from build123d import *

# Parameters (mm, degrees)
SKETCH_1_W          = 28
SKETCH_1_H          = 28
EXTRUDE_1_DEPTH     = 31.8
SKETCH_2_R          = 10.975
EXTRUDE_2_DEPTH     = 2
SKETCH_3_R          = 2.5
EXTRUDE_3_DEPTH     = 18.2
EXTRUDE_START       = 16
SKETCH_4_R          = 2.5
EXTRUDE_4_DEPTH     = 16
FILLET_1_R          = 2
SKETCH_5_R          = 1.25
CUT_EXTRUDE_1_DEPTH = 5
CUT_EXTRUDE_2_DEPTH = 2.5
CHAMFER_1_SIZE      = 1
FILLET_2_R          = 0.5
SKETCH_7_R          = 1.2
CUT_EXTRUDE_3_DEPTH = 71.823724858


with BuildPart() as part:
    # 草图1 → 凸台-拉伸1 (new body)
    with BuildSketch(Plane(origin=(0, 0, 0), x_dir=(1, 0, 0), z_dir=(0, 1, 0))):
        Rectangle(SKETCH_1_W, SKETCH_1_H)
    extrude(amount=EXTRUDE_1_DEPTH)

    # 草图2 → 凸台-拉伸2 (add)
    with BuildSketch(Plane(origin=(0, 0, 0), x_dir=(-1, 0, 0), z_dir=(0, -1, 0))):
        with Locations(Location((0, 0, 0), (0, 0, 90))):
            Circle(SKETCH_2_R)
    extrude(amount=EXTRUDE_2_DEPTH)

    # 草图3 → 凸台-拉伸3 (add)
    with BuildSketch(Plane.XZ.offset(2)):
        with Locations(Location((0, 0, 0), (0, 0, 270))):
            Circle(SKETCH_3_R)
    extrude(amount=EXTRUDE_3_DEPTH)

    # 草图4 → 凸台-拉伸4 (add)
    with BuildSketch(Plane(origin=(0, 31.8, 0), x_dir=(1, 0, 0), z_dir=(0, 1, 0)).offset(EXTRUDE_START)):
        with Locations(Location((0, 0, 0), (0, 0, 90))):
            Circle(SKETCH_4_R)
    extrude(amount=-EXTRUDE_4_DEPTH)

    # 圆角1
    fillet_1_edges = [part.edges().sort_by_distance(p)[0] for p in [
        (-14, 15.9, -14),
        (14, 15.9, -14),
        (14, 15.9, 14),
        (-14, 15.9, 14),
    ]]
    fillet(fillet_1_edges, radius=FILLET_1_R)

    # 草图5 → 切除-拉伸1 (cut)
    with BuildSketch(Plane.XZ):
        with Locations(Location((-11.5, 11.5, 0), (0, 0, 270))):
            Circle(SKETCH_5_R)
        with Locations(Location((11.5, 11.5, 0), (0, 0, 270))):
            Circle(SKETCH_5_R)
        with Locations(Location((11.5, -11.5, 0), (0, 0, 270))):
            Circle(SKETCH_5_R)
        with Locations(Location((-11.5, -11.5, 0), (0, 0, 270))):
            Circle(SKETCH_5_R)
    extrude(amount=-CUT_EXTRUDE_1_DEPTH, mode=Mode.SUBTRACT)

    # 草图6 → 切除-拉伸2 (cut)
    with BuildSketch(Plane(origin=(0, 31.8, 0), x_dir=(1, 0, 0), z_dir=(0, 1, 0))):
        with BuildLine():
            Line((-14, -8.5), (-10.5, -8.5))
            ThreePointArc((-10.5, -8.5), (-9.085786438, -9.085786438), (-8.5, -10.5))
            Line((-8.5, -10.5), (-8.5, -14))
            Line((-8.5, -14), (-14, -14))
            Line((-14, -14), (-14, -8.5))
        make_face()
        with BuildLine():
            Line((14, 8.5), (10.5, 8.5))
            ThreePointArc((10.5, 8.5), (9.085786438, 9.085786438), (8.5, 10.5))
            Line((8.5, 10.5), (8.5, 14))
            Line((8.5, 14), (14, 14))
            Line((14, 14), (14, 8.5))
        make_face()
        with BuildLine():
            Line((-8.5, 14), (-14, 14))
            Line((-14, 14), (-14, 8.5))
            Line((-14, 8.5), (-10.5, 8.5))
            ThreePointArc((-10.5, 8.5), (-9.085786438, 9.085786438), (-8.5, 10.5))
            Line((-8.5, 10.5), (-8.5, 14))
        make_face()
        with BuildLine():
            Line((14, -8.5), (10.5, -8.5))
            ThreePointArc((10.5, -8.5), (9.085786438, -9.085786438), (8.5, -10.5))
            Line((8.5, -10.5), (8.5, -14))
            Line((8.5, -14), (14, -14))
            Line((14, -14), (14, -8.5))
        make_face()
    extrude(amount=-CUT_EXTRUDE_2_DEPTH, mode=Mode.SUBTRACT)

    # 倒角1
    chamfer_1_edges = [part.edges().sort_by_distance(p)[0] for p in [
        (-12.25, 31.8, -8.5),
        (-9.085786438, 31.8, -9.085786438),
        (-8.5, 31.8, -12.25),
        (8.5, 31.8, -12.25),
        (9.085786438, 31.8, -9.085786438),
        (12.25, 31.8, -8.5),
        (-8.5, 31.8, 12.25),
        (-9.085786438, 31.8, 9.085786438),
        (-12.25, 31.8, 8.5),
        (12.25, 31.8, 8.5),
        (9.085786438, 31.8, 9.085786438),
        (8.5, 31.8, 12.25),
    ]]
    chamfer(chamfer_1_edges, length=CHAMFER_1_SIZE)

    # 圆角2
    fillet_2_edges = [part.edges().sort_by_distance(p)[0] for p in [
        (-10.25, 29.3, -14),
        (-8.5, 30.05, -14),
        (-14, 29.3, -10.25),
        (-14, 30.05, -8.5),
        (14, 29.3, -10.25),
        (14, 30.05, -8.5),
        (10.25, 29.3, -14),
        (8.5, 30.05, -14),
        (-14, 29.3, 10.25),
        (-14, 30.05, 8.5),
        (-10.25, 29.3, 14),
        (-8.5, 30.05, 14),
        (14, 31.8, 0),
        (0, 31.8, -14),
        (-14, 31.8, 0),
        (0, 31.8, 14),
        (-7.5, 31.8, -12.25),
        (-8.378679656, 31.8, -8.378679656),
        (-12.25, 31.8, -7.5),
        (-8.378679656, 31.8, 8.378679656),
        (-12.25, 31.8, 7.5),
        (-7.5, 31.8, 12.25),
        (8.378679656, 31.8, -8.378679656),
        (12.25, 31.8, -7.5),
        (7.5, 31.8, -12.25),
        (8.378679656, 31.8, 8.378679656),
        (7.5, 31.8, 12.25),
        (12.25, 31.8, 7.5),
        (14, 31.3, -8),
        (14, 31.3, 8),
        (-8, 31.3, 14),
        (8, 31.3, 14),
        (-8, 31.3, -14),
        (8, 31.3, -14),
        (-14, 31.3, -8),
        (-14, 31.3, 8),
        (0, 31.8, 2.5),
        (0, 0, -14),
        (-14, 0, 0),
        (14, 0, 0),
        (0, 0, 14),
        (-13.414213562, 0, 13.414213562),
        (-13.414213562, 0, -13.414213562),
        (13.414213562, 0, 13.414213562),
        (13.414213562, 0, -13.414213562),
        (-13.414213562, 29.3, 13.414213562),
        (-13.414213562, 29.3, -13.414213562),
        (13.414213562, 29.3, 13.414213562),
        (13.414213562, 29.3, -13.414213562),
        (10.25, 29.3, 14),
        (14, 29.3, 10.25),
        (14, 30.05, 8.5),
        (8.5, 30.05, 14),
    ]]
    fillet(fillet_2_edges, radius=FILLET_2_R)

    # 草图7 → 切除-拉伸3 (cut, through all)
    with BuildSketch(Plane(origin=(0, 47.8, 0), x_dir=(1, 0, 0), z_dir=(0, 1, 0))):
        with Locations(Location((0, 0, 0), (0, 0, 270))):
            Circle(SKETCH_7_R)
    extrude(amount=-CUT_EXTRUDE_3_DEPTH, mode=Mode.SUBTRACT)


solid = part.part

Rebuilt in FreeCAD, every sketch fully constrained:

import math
import FreeCAD as App
import Part
import Sketcher

V = App.Vector
Q = App.Units.Quantity


def edges_at(feature, points):
    """Names of the edges that pass closest to the given points."""
    edges = feature.Shape.Edges
    near = lambda p: min(range(len(edges)), key=lambda i: edges[i].distToShape(Part.Vertex(*p))[0])
    return sorted({f"Edge{near(p) + 1}" for p in points})

doc = App.newDocument("Part")
body = doc.addObject("PartDesign::Body", "Body")

# Sketch on XZ plane
sketch1 = doc.addObject("Sketcher::SketchObject", "Sketch")
body.addObject(sketch1)
sketch1.AttachmentSupport = (doc.XZ_Plane, [""])
sketch1.MapMode = "FlatFace"
sketch1.addGeometry([
    Part.LineSegment(V(-14, -14, 0), V(-14, 14, 0)),
    Part.LineSegment(V(-14, 14, 0), V(14, 14, 0)),
    Part.LineSegment(V(14, 14, 0), V(14, -14, 0)),
    Part.LineSegment(V(14, -14, 0), V(-14, -14, 0)),
], False)
sketch1.addConstraint([
    Sketcher.Constraint("Coincident", 0, 2, 1, 1),
    Sketcher.Constraint("Coincident", 1, 2, 2, 1),
    Sketcher.Constraint("Coincident", 2, 2, 3, 1),
    Sketcher.Constraint("Coincident", 3, 2, 0, 1),
    Sketcher.Constraint("Vertical", 0),
    Sketcher.Constraint("Horizontal", 1),
    Sketcher.Constraint("Vertical", 2),
    Sketcher.Constraint("Horizontal", 3),
    Sketcher.Constraint("Symmetric", 0, 2, 2, 2, -1, 1),
    Sketcher.Constraint("Equal", 3, 0),
    Sketcher.Constraint("DistanceX", 1, 1, 1, 2, Q("28 mm")),
])
pad1 = doc.addObject("PartDesign::Pad", "Pad")
body.addObject(pad1)
pad1.Profile = sketch1
pad1.Length = 31.8
pad1.Reversed = True

# Sketch on XZ plane
sketch2 = doc.addObject("Sketcher::SketchObject", "Sketch001")
body.addObject(sketch2)
sketch2.AttachmentSupport = (doc.XZ_Plane, [""])
sketch2.MapMode = "FlatFace"
sketch2.addGeometry(Part.Circle(V(0, 0, 0), V(0, 0, 1), 11), False)
sketch2.addConstraint([
    Sketcher.Constraint("Coincident", 0, 3, -1, 1),
    Sketcher.Constraint("Diameter", 0, Q("21.95 mm")),
])
pad2 = doc.addObject("PartDesign::Pad", "Pad001")
body.addObject(pad2)
pad2.Profile = sketch2
pad2.Length = 2

# Sketch on XZ plane
sketch3 = doc.addObject("Sketcher::SketchObject", "Sketch002")
body.addObject(sketch3)
sketch3.AttachmentSupport = (doc.XZ_Plane, [""])
sketch3.MapMode = "FlatFace"
sketch3.AttachmentOffset = App.Placement(V(0, 0, 2), App.Rotation())
sketch3.addGeometry(Part.Circle(V(0, 0, 0), V(0, 0, 1), 2.5), False)
sketch3.addConstraint([
    Sketcher.Constraint("Coincident", 0, 3, -1, 1),
    Sketcher.Constraint("Diameter", 0, Q("5 mm")),
])
pad3 = doc.addObject("PartDesign::Pad", "Pad002")
body.addObject(pad3)
pad3.Profile = sketch3
pad3.Length = 18.2

# Sketch on XZ plane
sketch4 = doc.addObject("Sketcher::SketchObject", "Sketch003")
body.addObject(sketch4)
sketch4.AttachmentSupport = (doc.XZ_Plane, [""])
sketch4.MapMode = "FlatFace"
sketch4.AttachmentOffset = App.Placement(V(0, 0, -47.8), App.Rotation())
sketch4.addGeometry(Part.Circle(V(0, 0, 0), V(0, 0, 1), 2.5), False)
sketch4.addConstraint([
    Sketcher.Constraint("Coincident", 0, 3, -1, 1),
    Sketcher.Constraint("Diameter", 0, Q("5 mm")),
])
pad4 = doc.addObject("PartDesign::Pad", "Pad003")
body.addObject(pad4)
pad4.Profile = sketch4
pad4.Length = 16
doc.recompute()

fillet = doc.addObject("PartDesign::Fillet", "Fillet")
body.addObject(fillet)
fillet.Base = (pad4, edges_at(pad4, [
    (-14, 15.9, -14),
    (14, 15.9, -14),
    (14, 15.9, 14),
    (-14, 15.9, 14),
]))
fillet.Radius = 2

# Sketch on XZ plane
sketch5 = doc.addObject("Sketcher::SketchObject", "Sketch004")
body.addObject(sketch5)
sketch5.AttachmentSupport = (doc.XZ_Plane, [""])
sketch5.MapMode = "FlatFace"
sketch5.addGeometry([
    Part.Circle(V(-11.5, 11.5, 0), V(0, 0, 1), 1.2),
    Part.Circle(V(11.5, 11.5, 0), V(0, 0, 1), 1.2),
    Part.Circle(V(11.5, -11.5, 0), V(0, 0, 1), 1.2),
    Part.Circle(V(-11.5, -11.5, 0), V(0, 0, 1), 1.2),
], False)
sketch5.addConstraint([
    Sketcher.Constraint("Equal", 0, 1),
    Sketcher.Constraint("Equal", 1, 2),
    Sketcher.Constraint("Equal", 2, 3),
    Sketcher.Constraint("Symmetric", 0, 3, 2, 3, -1, 1),
    Sketcher.Constraint("Symmetric", 1, 3, 3, 3, -1, 1),
    Sketcher.Constraint("Symmetric", 0, 3, 1, 3, -2),
    Sketcher.Constraint("Diameter", 0, Q("2.5 mm")),
    Sketcher.Constraint("DistanceX", 0, 3, 1, 3, Q("23 mm")),
    Sketcher.Constraint("DistanceY", 2, 3, 1, 3, Q("23 mm")),
])
pocket1 = doc.addObject("PartDesign::Pocket", "Pocket")
body.addObject(pocket1)
pocket1.Profile = sketch5
pocket1.Length = 5

# Sketch on XZ plane
sketch6 = doc.addObject("Sketcher::SketchObject", "Sketch005")
body.addObject(sketch6)
sketch6.AttachmentSupport = (doc.XZ_Plane, [""])
sketch6.MapMode = "FlatFace"
sketch6.AttachmentOffset = App.Placement(V(0, 0, -31.8), App.Rotation())
sketch6.addGeometry([
    Part.LineSegment(V(-10.5, 8.5, 0), V(-14, 8.5, 0)),  # 0
    Part.LineSegment(V(-14, 8.5, 0), V(-14, 14, 0)),  # 1
    Part.LineSegment(V(-14, 14, 0), V(-8.5, 14, 0)),  # 2
    Part.LineSegment(V(-8.5, 14, 0), V(-8.5, 10.5, 0)),  # 3
    Part.ArcOfCircle(Part.Circle(V(-10.5, 10.5, 0), V(0, 0, 1), 2), math.radians(-90), math.radians(0)),  # 4
    Part.LineSegment(V(10.5, -8.5, 0), V(14, -8.5, 0)),  # 5
    Part.LineSegment(V(14, -8.5, 0), V(14, -14, 0)),  # 6
    Part.LineSegment(V(14, -14, 0), V(8.5, -14, 0)),  # 7
    Part.LineSegment(V(8.5, -14, 0), V(8.5, -10.5, 0)),  # 8
    Part.ArcOfCircle(Part.Circle(V(10.5, -10.5, 0), V(0, 0, 1), 2), math.radians(90), math.radians(180)),  # 9
    Part.LineSegment(V(-8.5, -14, 0), V(-14, -14, 0)),  # 10
    Part.LineSegment(V(-14, -14, 0), V(-14, -8.5, 0)),  # 11
    Part.LineSegment(V(-14, -8.5, 0), V(-10.5, -8.5, 0)),  # 12
    Part.ArcOfCircle(Part.Circle(V(-10.5, -10.5, 0), V(0, 0, 1), 2), math.radians(0), math.radians(90)),  # 13
    Part.LineSegment(V(-8.5, -10.5, 0), V(-8.5, -14, 0)),  # 14
    Part.LineSegment(V(14, 8.5, 0), V(10.5, 8.5, 0)),  # 15
    Part.ArcOfCircle(Part.Circle(V(10.5, 10.5, 0), V(0, 0, 1), 2), math.radians(-180), math.radians(-90)),  # 16
    Part.LineSegment(V(8.5, 10.5, 0), V(8.5, 14, 0)),  # 17
    Part.LineSegment(V(8.5, 14, 0), V(14, 14, 0)),  # 18
    Part.LineSegment(V(14, 14, 0), V(14, 8.5, 0)),  # 19
], False)
sketch6.addConstraint([
    Sketcher.Constraint("Coincident", 0, 2, 1, 1),
    Sketcher.Constraint("Coincident", 1, 2, 2, 1),
    Sketcher.Constraint("Coincident", 2, 2, 3, 1),
    Sketcher.Constraint("Tangent", 3, 2, 4, 2),
    Sketcher.Constraint("Tangent", 4, 1, 0, 1),
    Sketcher.Constraint("Coincident", 5, 2, 6, 1),
    Sketcher.Constraint("Coincident", 6, 2, 7, 1),
    Sketcher.Constraint("Coincident", 7, 2, 8, 1),
    Sketcher.Constraint("Tangent", 8, 2, 9, 2),
    Sketcher.Constraint("Tangent", 9, 1, 5, 1),
    Sketcher.Constraint("Coincident", 10, 2, 11, 1),
    Sketcher.Constraint("Coincident", 11, 2, 12, 1),
    Sketcher.Constraint("Tangent", 12, 2, 13, 2),
    Sketcher.Constraint("Tangent", 13, 1, 14, 1),
    Sketcher.Constraint("Coincident", 14, 2, 10, 1),
    Sketcher.Constraint("Tangent", 15, 2, 16, 2),
    Sketcher.Constraint("Tangent", 16, 1, 17, 1),
    Sketcher.Constraint("Coincident", 17, 2, 18, 1),
    Sketcher.Constraint("Coincident", 18, 2, 19, 1),
    Sketcher.Constraint("Coincident", 19, 2, 15, 1),
    Sketcher.Constraint("Horizontal", 0),
    Sketcher.Constraint("Vertical", 1),
    Sketcher.Constraint("Horizontal", 2),
    Sketcher.Constraint("Vertical", 3),
    Sketcher.Constraint("Horizontal", 5),
    Sketcher.Constraint("Vertical", 6),
    Sketcher.Constraint("Horizontal", 7),
    Sketcher.Constraint("Vertical", 8),
    Sketcher.Constraint("Horizontal", 10),
    Sketcher.Constraint("Vertical", 11),
    Sketcher.Constraint("Horizontal", 12),
    Sketcher.Constraint("Vertical", 14),
    Sketcher.Constraint("Horizontal", 15),
    Sketcher.Constraint("Vertical", 17),
    Sketcher.Constraint("Horizontal", 18),
    Sketcher.Constraint("Vertical", 19),
    Sketcher.Constraint("Equal", 4, 9),
    Sketcher.Constraint("Equal", 9, 13),
    Sketcher.Constraint("Equal", 13, 16),
    Sketcher.Constraint("Symmetric", 4, 3, 9, 3, -1, 1),
    Sketcher.Constraint("Symmetric", 13, 3, 16, 3, -1, 1),
    Sketcher.Constraint("Symmetric", 1, 2, 6, 2, -1, 1),
    Sketcher.Constraint("Symmetric", 10, 2, 18, 2, -1, 1),
    Sketcher.Constraint("Symmetric", 9, 3, 13, 3, -2),
    Sketcher.Constraint("Symmetric", 6, 2, 10, 2, -2),
    Sketcher.Constraint("Equal", 18, 1),
    Sketcher.Constraint("Radius", 4, Q("2 mm")),
    Sketcher.Constraint("DistanceX", 0, 2, 0, 1, Q("3.5 mm")),
    Sketcher.Constraint("DistanceX", 0, 2, -1, 1, Q("14 mm")),
    Sketcher.Constraint("DistanceY", -1, 1, 1, 2, Q("14 mm")),
])
pocket2 = doc.addObject("PartDesign::Pocket", "Pocket001")
body.addObject(pocket2)
pocket2.Profile = sketch6
pocket2.Length = 2.5
pocket2.Reversed = True
doc.recompute()

chamfer = doc.addObject("PartDesign::Chamfer", "Chamfer")
body.addObject(chamfer)
chamfer.Base = (pocket2, edges_at(pocket2, [
    (-12.25, 31.8, -8.5),
    (-9.086, 31.8, -9.086),
    (-8.5, 31.8, -12.25),
    (8.5, 31.8, -12.25),
    (9.086, 31.8, -9.086),
    (12.25, 31.8, -8.5),
    (-8.5, 31.8, 12.25),
    (-9.086, 31.8, 9.086),
    (-12.25, 31.8, 8.5),
    (12.25, 31.8, 8.5),
    (9.086, 31.8, 9.086),
    (8.5, 31.8, 12.25),
]))
chamfer.Size = 1
doc.recompute()

fillet2 = doc.addObject("PartDesign::Fillet", "Fillet001")
body.addObject(fillet2)
fillet2.Base = (chamfer, edges_at(chamfer, [
    (-10.25, 29.3, -14),
    (-8.5, 30.05, -14),
    (-14, 29.3, -10.25),
    (-14, 30.05, -8.5),
    (14, 29.3, -10.25),
    (14, 30.05, -8.5),
    (10.25, 29.3, -14),
    (8.5, 30.05, -14),
    (-14, 29.3, 10.25),
    (-14, 30.05, 8.5),
    (-10.25, 29.3, 14),
    (-8.5, 30.05, 14),
    (14, 31.8, 0),
    (0, 31.8, -14),
    (-14, 31.8, 0),
    (0, 31.8, 14),
    (-7.5, 31.8, -12.25),
    (-8.379, 31.8, -8.379),
    (-12.25, 31.8, -7.5),
    (-8.379, 31.8, 8.379),
    (-12.25, 31.8, 7.5),
    (-7.5, 31.8, 12.25),
    (8.379, 31.8, -8.379),
    (12.25, 31.8, -7.5),
    (7.5, 31.8, -12.25),
    (8.379, 31.8, 8.379),
    (7.5, 31.8, 12.25),
    (12.25, 31.8, 7.5),
    (14, 31.3, -8),
    (14, 31.3, 8),
    (-8, 31.3, 14),
    (8, 31.3, 14),
    (-8, 31.3, -14),
    (8, 31.3, -14),
    (-14, 31.3, -8),
    (-14, 31.3, 8),
    (0, 31.8, 2.5),
    (0, 0, -14),
    (-14, 0, 0),
    (14, 0, 0),
    (0, 0, 14),
    (-13.414, 0, 13.414),
    (-13.414, 0, -13.414),
    (13.414, 0, 13.414),
    (13.414, 0, -13.414),
    (-13.414, 29.3, 13.414),
    (-13.414, 29.3, -13.414),
    (13.414, 29.3, 13.414),
    (13.414, 29.3, -13.414),
    (10.25, 29.3, 14),
    (14, 29.3, 10.25),
    (14, 30.05, 8.5),
    (8.5, 30.05, 14),
]))
fillet2.Radius = 0.5

# Sketch on XZ plane
sketch7 = doc.addObject("Sketcher::SketchObject", "Sketch006")
body.addObject(sketch7)
sketch7.AttachmentSupport = (doc.XZ_Plane, [""])
sketch7.MapMode = "FlatFace"
sketch7.AttachmentOffset = App.Placement(V(0, 0, -47.8), App.Rotation())
sketch7.addGeometry(Part.Circle(V(0, 0, 0), V(0, 0, 1), 1.2), False)
sketch7.addConstraint([
    Sketcher.Constraint("Coincident", 0, 3, -1, 1),
    Sketcher.Constraint("Diameter", 0, Q("2.4 mm")),
])
pocket3 = doc.addObject("PartDesign::Pocket", "Pocket002")
body.addObject(pocket3)
pocket3.Profile = sketch7
pocket3.Type = "ThroughAll"
pocket3.Reversed = True

doc.recompute()
